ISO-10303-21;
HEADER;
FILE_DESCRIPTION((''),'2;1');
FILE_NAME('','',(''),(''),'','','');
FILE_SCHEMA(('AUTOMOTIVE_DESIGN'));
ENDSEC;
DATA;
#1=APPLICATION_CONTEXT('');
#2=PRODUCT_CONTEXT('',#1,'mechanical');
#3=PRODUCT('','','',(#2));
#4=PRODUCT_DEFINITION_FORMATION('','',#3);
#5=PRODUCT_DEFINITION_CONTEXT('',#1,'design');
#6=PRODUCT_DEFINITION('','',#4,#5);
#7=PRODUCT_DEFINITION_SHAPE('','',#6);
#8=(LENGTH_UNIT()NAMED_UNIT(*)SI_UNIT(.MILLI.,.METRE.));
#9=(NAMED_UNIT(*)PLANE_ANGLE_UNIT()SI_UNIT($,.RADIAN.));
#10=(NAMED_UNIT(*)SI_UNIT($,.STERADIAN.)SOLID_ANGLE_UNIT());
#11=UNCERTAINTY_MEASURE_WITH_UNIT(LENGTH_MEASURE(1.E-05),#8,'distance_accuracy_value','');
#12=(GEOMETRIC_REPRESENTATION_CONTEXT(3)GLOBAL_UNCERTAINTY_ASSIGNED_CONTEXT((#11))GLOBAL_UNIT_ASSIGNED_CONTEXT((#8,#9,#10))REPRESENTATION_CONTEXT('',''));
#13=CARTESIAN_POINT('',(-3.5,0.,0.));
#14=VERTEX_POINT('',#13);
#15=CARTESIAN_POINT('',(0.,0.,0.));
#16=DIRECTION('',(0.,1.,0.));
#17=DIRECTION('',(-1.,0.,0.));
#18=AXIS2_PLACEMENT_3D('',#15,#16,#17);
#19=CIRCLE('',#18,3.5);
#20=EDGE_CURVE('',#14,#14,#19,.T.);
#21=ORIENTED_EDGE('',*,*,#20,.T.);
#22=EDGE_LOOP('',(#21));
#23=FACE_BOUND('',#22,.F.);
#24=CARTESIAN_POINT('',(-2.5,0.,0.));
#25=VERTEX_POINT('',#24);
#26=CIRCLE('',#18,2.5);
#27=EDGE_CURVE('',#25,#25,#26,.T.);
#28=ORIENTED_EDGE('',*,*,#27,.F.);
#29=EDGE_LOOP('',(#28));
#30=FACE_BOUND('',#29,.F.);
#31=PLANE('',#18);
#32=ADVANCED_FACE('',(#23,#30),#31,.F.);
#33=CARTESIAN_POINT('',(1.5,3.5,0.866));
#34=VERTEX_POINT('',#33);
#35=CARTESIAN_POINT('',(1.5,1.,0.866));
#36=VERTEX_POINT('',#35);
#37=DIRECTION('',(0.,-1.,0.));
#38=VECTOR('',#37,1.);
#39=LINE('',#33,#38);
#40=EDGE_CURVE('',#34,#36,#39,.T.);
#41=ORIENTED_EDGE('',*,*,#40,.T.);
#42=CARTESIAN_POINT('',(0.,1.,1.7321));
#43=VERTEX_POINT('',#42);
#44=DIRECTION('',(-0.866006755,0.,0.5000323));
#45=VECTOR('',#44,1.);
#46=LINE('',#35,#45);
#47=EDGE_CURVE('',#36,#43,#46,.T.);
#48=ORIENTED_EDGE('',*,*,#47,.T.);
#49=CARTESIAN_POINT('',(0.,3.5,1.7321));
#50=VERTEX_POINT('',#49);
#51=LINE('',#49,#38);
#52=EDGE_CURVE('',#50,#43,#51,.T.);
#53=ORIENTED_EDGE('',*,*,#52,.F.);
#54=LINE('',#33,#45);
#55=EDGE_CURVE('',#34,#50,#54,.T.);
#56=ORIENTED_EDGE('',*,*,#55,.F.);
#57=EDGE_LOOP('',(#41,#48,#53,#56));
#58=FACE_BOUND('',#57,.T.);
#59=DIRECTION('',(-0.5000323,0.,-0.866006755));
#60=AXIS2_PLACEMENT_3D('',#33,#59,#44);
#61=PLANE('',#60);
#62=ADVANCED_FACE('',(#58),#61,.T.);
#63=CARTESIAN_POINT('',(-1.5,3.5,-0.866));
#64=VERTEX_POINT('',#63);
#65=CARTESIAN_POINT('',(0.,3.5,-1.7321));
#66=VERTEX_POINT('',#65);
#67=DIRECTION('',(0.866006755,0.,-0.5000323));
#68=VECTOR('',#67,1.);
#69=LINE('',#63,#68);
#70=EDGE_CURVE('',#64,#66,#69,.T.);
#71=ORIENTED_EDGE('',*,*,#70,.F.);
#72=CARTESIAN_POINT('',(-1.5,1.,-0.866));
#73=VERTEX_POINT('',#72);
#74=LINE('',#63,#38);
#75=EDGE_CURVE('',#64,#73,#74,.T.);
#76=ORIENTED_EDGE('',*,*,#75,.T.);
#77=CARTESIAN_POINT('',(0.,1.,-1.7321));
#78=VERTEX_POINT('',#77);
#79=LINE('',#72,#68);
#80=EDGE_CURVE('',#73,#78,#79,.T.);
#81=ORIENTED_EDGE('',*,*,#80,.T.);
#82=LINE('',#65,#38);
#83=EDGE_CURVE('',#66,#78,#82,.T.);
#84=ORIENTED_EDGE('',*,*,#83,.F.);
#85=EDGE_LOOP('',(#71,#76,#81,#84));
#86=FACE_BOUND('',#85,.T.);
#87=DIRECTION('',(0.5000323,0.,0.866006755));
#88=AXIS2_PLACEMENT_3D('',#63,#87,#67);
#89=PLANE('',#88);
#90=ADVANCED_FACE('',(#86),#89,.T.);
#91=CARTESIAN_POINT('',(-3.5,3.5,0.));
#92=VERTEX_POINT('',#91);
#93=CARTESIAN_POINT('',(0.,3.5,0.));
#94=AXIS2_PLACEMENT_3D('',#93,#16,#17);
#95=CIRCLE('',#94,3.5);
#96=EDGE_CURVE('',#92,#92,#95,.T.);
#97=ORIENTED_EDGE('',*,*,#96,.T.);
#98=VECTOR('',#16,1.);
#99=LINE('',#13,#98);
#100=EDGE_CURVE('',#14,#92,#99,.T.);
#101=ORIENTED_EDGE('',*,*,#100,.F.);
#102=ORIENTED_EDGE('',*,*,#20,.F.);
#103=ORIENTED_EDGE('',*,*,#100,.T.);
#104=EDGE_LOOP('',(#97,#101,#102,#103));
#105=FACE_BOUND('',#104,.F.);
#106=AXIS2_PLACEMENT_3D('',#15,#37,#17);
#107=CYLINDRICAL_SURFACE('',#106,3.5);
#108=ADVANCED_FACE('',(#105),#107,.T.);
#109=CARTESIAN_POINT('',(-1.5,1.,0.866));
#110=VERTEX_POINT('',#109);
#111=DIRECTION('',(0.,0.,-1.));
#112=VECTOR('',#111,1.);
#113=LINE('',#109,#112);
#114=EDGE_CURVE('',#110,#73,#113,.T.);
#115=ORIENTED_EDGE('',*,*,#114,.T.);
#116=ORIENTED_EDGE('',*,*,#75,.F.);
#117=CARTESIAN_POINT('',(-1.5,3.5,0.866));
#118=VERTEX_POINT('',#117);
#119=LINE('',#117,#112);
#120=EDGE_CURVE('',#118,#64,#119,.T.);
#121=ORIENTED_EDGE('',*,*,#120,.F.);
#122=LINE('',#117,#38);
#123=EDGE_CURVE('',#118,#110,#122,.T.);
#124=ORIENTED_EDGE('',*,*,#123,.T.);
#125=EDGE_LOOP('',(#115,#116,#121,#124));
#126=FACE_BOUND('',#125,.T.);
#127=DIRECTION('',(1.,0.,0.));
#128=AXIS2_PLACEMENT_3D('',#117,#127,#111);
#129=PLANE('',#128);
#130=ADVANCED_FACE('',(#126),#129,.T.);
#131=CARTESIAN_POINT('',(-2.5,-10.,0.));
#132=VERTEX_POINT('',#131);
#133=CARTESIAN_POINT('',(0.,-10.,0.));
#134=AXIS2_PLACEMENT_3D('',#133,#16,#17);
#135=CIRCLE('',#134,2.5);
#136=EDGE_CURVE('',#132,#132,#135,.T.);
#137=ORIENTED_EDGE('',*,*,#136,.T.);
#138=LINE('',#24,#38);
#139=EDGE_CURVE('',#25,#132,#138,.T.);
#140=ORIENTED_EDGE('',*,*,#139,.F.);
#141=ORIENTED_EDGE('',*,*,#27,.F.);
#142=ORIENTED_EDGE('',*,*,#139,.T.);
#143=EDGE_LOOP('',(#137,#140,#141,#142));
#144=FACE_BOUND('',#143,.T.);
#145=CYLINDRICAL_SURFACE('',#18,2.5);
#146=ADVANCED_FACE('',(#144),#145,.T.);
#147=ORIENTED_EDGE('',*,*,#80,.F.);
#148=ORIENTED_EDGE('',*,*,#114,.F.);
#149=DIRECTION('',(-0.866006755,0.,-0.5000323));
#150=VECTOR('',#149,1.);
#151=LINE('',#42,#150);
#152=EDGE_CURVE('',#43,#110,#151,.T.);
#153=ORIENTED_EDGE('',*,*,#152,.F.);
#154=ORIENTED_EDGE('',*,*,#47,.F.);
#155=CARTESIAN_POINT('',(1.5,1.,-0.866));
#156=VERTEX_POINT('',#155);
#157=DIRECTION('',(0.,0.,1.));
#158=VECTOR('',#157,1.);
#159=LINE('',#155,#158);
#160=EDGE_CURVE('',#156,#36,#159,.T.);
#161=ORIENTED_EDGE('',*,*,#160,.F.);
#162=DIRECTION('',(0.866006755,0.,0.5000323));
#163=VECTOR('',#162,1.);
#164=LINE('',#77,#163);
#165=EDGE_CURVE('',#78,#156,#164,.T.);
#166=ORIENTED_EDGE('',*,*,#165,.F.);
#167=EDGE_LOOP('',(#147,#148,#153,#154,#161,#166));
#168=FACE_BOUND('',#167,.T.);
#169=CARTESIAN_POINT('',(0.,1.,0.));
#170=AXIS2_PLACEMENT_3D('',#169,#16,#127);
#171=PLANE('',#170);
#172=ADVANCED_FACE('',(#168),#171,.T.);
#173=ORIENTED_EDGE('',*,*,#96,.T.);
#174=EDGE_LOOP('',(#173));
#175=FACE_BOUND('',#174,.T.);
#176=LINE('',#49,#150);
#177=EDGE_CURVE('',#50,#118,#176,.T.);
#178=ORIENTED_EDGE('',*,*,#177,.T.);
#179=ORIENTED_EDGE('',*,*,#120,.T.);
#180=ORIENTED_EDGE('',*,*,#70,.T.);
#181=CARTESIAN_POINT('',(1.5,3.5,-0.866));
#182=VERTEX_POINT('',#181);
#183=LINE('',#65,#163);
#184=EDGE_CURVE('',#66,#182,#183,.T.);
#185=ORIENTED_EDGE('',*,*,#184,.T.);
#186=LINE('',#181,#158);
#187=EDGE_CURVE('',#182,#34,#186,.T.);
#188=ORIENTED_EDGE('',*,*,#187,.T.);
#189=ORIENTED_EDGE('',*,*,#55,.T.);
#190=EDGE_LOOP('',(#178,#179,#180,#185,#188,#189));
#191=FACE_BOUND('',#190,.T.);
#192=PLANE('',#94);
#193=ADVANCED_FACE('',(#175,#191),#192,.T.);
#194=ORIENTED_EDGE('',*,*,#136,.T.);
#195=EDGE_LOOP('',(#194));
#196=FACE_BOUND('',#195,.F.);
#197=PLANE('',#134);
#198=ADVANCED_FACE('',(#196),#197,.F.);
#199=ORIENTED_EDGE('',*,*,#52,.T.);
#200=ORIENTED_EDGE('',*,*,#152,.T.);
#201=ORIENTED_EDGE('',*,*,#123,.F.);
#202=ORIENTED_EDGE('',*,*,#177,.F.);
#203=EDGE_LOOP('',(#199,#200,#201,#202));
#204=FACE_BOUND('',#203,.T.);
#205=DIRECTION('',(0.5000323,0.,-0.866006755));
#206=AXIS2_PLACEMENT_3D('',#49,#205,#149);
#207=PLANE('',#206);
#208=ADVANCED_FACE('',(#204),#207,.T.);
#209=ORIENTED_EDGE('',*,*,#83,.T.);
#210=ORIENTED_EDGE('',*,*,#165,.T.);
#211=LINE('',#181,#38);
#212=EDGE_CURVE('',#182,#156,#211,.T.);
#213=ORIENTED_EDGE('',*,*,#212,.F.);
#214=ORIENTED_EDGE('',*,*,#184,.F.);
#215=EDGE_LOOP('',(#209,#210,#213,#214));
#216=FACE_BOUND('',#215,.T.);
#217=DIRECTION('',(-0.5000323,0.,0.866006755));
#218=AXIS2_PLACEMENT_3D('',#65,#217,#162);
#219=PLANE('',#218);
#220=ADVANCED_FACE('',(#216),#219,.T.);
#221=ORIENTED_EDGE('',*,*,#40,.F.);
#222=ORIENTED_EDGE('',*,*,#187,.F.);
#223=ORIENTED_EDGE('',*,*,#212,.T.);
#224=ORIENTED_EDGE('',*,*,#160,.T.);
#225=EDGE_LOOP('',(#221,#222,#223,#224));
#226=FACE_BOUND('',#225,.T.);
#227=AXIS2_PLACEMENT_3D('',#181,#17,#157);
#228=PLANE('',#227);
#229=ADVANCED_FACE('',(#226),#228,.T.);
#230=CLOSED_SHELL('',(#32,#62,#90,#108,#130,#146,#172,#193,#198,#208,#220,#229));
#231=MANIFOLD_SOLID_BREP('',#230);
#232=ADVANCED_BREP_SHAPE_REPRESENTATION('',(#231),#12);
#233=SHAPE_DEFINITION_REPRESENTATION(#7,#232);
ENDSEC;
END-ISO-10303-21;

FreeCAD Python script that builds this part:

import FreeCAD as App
import Part
import Sketcher

V = App.Vector


def add_polygon(sketch, points):
    """Adds a closed chain of lines whose ends are joined by coincident constraints."""
    first, n = sketch.GeometryCount, len(points)
    for a, b in zip(points, points[1:] + points[:1]):
        sketch.addGeometry(Part.LineSegment(App.Vector(*a, 0), App.Vector(*b, 0)), False)
    for i in range(n):
        sketch.addConstraint(Sketcher.Constraint("Coincident", first + i, 2, first + (i + 1) % n, 1))

doc = App.newDocument("Part")
body = doc.addObject("PartDesign::Body", "Body")

# Sketch on XZ plane
sketch1 = body.newObject("Sketcher::SketchObject", "Sketch")
sketch1.AttachmentSupport = (doc.getObject("XZ_Plane"), [""])
sketch1.MapMode = "FlatFace"
sketch1.addGeometry(Part.Circle(V(0, 0, 0), V(0, 0, 1), 2.5), False)
sketch1.addConstraint(Sketcher.Constraint("Coincident", 0, 3, -1, 1))
sketch1.addConstraint(Sketcher.Constraint("Diameter", 0, 5.0))
pad1 = body.newObject("PartDesign::Pad", "Pad")
pad1.Profile = sketch1
pad1.Length = 10

# Sketch on XZ plane
sketch2 = body.newObject("Sketcher::SketchObject", "Sketch001")
sketch2.AttachmentSupport = (doc.getObject("XZ_Plane"), [""])
sketch2.MapMode = "FlatFace"
sketch2.addGeometry(Part.Circle(V(0, 0, 0), V(0, 0, 1), 3.5), False)
sketch2.addConstraint(Sketcher.Constraint("Coincident", 0, 3, -1, 1))
sketch2.addConstraint(Sketcher.Constraint("Diameter", 0, 7.0))
pad2 = body.newObject("PartDesign::Pad", "Pad001")
pad2.Profile = sketch2
pad2.Length = 3.5
pad2.Reversed = True

# Sketch on XZ plane
sketch3 = body.newObject("Sketcher::SketchObject", "Sketch002")
sketch3.AttachmentSupport = (doc.getObject("XZ_Plane"), [""])
sketch3.MapMode = "FlatFace"
sketch3.AttachmentOffset = App.Placement(V(0, 0, -3.5), App.Rotation())
add_polygon(sketch3, [(-1.5, -0.866), (-1.5, 0.866), (0, 1.7321), (1.5, 0.866), (1.5, -0.866), (0, -1.7321)])  # lines 0-5
sketch3.addConstraint(Sketcher.Constraint("Vertical", 0))
sketch3.addConstraint(Sketcher.Constraint("Vertical", 3))
sketch3.addConstraint(Sketcher.Constraint("Symmetric", 0, 2, 3, 2, -1, 1))
sketch3.addConstraint(Sketcher.Constraint("Symmetric", 1, 2, 4, 2, -1, 1))
sketch3.addConstraint(Sketcher.Constraint("PointOnObject", 1, 2, -2))
sketch3.addConstraint(Sketcher.Constraint("Parallel", 2, 5))
sketch3.addConstraint(Sketcher.Constraint("Horizontal", 0, 2, 2, 2))
sketch3.addConstraint(Sketcher.Constraint("DistanceX", 0, 2, 2, 2, 3.0))
sketch3.addConstraint(Sketcher.Constraint("DistanceY", 0, 1, 0, 2, 1.732))
sketch3.addConstraint(Sketcher.Constraint("Distance", 1, 1.732))
pocket1 = body.newObject("PartDesign::Pocket", "Pocket")
pocket1.Profile = sketch3
pocket1.Length = 2.5
pocket1.Reversed = True

doc.recompute()
